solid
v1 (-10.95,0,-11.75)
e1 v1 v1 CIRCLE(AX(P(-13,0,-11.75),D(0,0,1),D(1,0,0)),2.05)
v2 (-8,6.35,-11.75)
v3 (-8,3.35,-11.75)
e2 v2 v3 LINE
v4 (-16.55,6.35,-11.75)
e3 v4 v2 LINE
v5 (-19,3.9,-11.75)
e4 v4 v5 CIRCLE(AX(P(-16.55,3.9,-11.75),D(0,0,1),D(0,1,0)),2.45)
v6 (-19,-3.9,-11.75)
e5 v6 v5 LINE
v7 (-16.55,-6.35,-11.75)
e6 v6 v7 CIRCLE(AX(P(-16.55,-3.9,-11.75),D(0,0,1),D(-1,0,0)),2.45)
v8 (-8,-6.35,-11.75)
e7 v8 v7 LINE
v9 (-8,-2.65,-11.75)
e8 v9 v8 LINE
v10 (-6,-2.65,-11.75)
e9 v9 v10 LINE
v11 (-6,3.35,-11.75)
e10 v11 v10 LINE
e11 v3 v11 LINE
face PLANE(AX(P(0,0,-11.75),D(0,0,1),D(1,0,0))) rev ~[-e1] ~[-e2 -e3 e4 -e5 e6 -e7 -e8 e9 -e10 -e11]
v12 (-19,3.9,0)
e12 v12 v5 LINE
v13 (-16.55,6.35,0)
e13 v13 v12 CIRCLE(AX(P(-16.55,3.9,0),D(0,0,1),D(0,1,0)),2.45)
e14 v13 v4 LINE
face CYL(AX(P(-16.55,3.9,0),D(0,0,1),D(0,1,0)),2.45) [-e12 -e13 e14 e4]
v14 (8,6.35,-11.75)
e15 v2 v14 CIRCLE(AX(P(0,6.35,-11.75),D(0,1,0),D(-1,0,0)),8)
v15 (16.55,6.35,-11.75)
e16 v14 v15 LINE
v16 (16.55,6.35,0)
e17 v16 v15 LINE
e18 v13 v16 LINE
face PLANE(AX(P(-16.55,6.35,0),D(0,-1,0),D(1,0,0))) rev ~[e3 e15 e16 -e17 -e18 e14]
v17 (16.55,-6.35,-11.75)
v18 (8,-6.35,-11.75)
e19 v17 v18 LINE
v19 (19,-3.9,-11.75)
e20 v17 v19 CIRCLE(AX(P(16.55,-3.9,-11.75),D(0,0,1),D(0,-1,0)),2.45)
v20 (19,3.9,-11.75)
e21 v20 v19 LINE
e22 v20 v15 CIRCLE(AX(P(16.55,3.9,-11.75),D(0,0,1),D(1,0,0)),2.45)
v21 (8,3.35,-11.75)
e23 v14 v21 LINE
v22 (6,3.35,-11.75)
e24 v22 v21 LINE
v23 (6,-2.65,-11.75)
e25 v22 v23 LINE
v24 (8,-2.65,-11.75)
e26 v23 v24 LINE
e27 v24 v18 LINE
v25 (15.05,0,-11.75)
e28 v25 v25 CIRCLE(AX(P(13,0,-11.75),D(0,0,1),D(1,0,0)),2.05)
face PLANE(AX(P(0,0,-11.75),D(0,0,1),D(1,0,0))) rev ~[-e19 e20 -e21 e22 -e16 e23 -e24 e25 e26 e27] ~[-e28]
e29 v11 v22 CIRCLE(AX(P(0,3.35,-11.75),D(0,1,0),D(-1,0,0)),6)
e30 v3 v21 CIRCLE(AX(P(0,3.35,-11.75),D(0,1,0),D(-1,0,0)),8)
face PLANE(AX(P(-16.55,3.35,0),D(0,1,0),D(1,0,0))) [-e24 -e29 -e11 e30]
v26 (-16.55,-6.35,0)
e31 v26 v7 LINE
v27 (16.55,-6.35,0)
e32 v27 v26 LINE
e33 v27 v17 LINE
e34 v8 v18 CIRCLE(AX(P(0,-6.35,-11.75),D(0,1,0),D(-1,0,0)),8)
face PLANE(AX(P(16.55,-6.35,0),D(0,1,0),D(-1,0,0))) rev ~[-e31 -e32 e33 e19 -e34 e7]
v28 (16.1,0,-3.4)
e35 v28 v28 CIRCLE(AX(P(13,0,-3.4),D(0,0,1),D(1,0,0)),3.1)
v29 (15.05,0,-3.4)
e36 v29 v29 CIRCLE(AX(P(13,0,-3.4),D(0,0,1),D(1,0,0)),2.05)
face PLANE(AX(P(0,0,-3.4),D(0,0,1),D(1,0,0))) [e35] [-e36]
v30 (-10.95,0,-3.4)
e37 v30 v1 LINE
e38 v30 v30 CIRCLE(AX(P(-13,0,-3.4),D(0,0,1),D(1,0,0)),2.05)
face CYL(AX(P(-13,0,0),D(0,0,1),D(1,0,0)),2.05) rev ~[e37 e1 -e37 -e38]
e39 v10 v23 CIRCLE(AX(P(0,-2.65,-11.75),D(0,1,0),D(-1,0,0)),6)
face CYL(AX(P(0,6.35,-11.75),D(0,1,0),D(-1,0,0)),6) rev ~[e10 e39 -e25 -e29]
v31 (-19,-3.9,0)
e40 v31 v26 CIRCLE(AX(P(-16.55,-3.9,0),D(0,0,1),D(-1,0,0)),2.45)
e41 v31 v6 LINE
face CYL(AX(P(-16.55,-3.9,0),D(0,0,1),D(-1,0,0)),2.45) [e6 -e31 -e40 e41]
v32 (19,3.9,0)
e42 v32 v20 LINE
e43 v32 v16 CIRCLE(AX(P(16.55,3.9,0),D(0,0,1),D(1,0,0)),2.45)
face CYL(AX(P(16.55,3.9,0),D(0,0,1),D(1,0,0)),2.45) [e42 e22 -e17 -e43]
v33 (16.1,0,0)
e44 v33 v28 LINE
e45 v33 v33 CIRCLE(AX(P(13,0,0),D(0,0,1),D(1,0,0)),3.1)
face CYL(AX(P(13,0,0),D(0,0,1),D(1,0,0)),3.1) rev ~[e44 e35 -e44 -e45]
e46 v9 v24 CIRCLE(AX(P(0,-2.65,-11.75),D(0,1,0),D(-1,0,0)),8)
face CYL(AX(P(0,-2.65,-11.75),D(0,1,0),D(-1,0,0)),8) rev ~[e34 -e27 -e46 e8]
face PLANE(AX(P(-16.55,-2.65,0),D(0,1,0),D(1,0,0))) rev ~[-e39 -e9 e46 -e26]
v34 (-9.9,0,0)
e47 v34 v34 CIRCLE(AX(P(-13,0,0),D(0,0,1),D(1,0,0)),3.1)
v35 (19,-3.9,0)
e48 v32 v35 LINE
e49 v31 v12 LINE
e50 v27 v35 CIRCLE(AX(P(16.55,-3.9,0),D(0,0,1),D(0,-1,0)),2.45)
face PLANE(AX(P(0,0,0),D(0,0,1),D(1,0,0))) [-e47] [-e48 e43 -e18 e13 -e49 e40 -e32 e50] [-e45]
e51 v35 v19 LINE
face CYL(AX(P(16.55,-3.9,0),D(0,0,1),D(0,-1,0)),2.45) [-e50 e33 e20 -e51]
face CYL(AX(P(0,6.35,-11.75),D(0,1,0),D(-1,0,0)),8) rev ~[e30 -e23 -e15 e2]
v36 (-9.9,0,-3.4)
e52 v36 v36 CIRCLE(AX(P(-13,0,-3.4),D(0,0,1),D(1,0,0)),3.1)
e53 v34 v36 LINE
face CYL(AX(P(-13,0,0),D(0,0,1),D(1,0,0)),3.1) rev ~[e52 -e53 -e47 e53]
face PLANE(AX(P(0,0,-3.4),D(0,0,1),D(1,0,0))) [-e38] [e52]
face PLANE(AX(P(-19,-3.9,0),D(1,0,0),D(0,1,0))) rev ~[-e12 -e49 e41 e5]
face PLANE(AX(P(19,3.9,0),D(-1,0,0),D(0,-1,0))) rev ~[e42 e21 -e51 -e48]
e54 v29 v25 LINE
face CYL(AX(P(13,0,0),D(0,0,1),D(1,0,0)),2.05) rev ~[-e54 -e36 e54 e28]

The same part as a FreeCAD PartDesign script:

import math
import FreeCAD as App
import Part
import Sketcher
Q = App.Units.Quantity

doc = App.newDocument("Part")
body = doc.addObject("PartDesign::Body", "Body")

# Sketch on XY plane
sketch1 = doc.addObject("Sketcher::SketchObject", "Sketch")
body.addObject(sketch1)
sketch1.AttachmentSupport = (doc.XY_Plane, [""])
sketch1.MapMode = "FlatFace"
sketch1.addGeometry([
    Part.LineSegment(App.Vector(16.55, 6.35, 0), App.Vector(-16.55, 6.35, 0)),  # 0
    Part.ArcOfCircle(Part.Circle(App.Vector(-16.55, 3.9, 0), App.Vector(0, 0, 1), 2.45), math.radians(90), math.radians(180)),  # 1
    Part.LineSegment(App.Vector(-19, 3.9, 0), App.Vector(-19, -3.9, 0)),  # 2
    Part.ArcOfCircle(Part.Circle(App.Vector(-16.55, -3.9, 0), App.Vector(0, 0, 1), 2.45), math.radians(180), math.radians(270)),  # 3
    Part.LineSegment(App.Vector(-16.55, -6.35, 0), App.Vector(16.55, -6.35, 0)),  # 4
    Part.ArcOfCircle(Part.Circle(App.Vector(16.55, -3.9, 0), App.Vector(0, 0, 1), 2.45), math.radians(-90), math.radians(0)),  # 5
    Part.LineSegment(App.Vector(19, -3.9, 0), App.Vector(19, 3.9, 0)),  # 6
    Part.ArcOfCircle(Part.Circle(App.Vector(16.55, 3.9, 0), App.Vector(0, 0, 1), 2.45), math.radians(0), math.radians(90)),  # 7
], False)
sketch1.addConstraint([
    Sketcher.Constraint("Tangent", 0, 2, 1, 1),
    Sketcher.Constraint("Tangent", 1, 2, 2, 1),
    Sketcher.Constraint("Tangent", 2, 2, 3, 1),
    Sketcher.Constraint("Tangent", 3, 2, 4, 1),
    Sketcher.Constraint("Tangent", 4, 2, 5, 1),
    Sketcher.Constraint("Tangent", 5, 2, 6, 1),
    Sketcher.Constraint("Tangent", 6, 2, 7, 1),
    Sketcher.Constraint("Tangent", 7, 2, 0, 1),
    Sketcher.Constraint("Horizontal", 0),
    Sketcher.Constraint("Vertical", 2),
    Sketcher.Constraint("Horizontal", 4),
    Sketcher.Constraint("Vertical", 6),
    Sketcher.Constraint("Equal", 1, 3),
    Sketcher.Constraint("Equal", 3, 5),
    Sketcher.Constraint("Equal", 5, 7),
    Sketcher.Constraint("Symmetric", 1, 3, 5, 3, -1, 1),
    Sketcher.Constraint("Radius", 1, Q("2.45 mm")),
    Sketcher.Constraint("DistanceY", 3, 2, 0, 2, Q("12.7 mm")),
    Sketcher.Constraint("DistanceX", 0, 2, 0, 1, Q("33.1 mm")),
])
pad1 = doc.addObject("PartDesign::Pad", "Pad")
body.addObject(pad1)
pad1.Profile = sketch1
pad1.Length = 11.75
pad1.Reversed = True

# Sketch on XY plane
sketch2 = doc.addObject("Sketcher::SketchObject", "Sketch001")
body.addObject(sketch2)
sketch2.AttachmentSupport = (doc.XY_Plane, [""])
sketch2.MapMode = "FlatFace"
sketch2.addGeometry([
    Part.Circle(App.Vector(-13, 0, 0), App.Vector(0, 0, 1), 2.05),
    Part.Circle(App.Vector(13, 0, 0), App.Vector(0, 0, 1), 2.05),
], False)
sketch2.addConstraint([
    Sketcher.Constraint("Equal", 0, 1),
    Sketcher.Constraint("Symmetric", 0, 3, 1, 3, -1, 1),
    Sketcher.Constraint("PointOnObject", 0, 3, -1),
    Sketcher.Constraint("Diameter", 0, Q("4.1 mm")),
    Sketcher.Constraint("DistanceX", 0, 3, -1, 1, Q("13 mm")),
])
pocket1 = doc.addObject("PartDesign::Pocket", "Pocket")
body.addObject(pocket1)
pocket1.Profile = sketch2
pocket1.Length = 11.75

# Sketch on XY plane
sketch3 = doc.addObject("Sketcher::SketchObject", "Sketch002")
body.addObject(sketch3)
sketch3.AttachmentSupport = (doc.XY_Plane, [""])
sketch3.MapMode = "FlatFace"
sketch3.addGeometry([
    Part.Circle(App.Vector(-13, 0, 0), App.Vector(0, 0, 1), 3.1),
    Part.Circle(App.Vector(-13, 0, 0), App.Vector(0, 0, 1), 2.05),
    Part.Circle(App.Vector(13, 0, 0), App.Vector(0, 0, 1), 3.1),
    Part.Circle(App.Vector(13, 0, 0), App.Vector(0, 0, 1), 2.05),
], False)
sketch3.addConstraint([
    Sketcher.Constraint("Coincident", 1, 3, 0, 3),
    Sketcher.Constraint("Coincident", 3, 3, 2, 3),
    Sketcher.Constraint("Equal", 0, 2),
    Sketcher.Constraint("Equal", 1, 3),
    Sketcher.Constraint("Symmetric", 0, 3, 2, 3, -1, 1),
    Sketcher.Constraint("PointOnObject", 0, 3, -1),
    Sketcher.Constraint("Diameter", 0, Q("6.2 mm")),
    Sketcher.Constraint("Diameter", 1, Q("4.1 mm")),
    Sketcher.Constraint("DistanceX", 0, 3, -1, 1, Q("13 mm")),
])
pocket2 = doc.addObject("PartDesign::Pocket", "Pocket001")
body.addObject(pocket2)
pocket2.Profile = sketch3
pocket2.Length = 3.4

# Sketch on XZ plane
sketch4 = doc.addObject("Sketcher::SketchObject", "Sketch003")
body.addObject(sketch4)
sketch4.AttachmentSupport = (doc.XZ_Plane, [""])
sketch4.MapMode = "FlatFace"
sketch4.AttachmentOffset = App.Placement(App.Vector(0, 0, -6.35), App.Rotation())
sketch4.addGeometry([
    Part.ArcOfCircle(Part.Circle(App.Vector(0, -11.75, 0), App.Vector(0, 0, 1), 6), math.radians(0), math.radians(180)),
    Part.LineSegment(App.Vector(-6, -11.75, 0), App.Vector(-8, -11.75, 0)),
    Part.ArcOfCircle(Part.Circle(App.Vector(0, -11.75, 0), App.Vector(0, 0, 1), 8), math.radians(0), math.radians(180)),
    Part.LineSegment(App.Vector(8, -11.75, 0), App.Vector(6, -11.75, 0)),
], False)
sketch4.addConstraint([
    Sketcher.Constraint("Coincident", 0, 2, 1, 1),
    Sketcher.Constraint("Coincident", 1, 2, 2, 2),
    Sketcher.Constraint("Coincident", 2, 1, 3, 1),
    Sketcher.Constraint("Coincident", 3, 2, 0, 1),
    Sketcher.Constraint("Horizontal", 1),
    Sketcher.Constraint("Horizontal", 3),
    Sketcher.Constraint("Coincident", 2, 3, 0, 3),
    Sketcher.Constraint("Symmetric", 1, 2, 2, 1, -2),
    Sketcher.Constraint("Horizontal", 2, 3, 0, 2),
    Sketcher.Constraint("Radius", 0, Q("6 mm")),
    Sketcher.Constraint("Radius", 2, Q("8 mm")),
    Sketcher.Constraint("DistanceY", 0, 3, -1, 1, Q("11.75 mm")),
])
pocket3 = doc.addObject("PartDesign::Pocket", "Pocket002")
body.addObject(pocket3)
pocket3.Profile = sketch4
pocket3.Length = 3
pocket3.Reversed = True

# Sketch on XZ plane
sketch5 = doc.addObject("Sketcher::SketchObject", "Sketch004")
body.addObject(sketch5)
sketch5.AttachmentSupport = (doc.XZ_Plane, [""])
sketch5.MapMode = "FlatFace"
sketch5.AttachmentOffset = App.Placement(App.Vector(0, 0, -6.35), App.Rotation())
sketch5.addGeometry([
    Part.LineSegment(App.Vector(6, -11.75, 0), App.Vector(-6, -11.75, 0)),
    Part.ArcOfCircle(Part.Circle(App.Vector(0, -11.75, 0), App.Vector(0, 0, 1), 6), math.radians(0), math.radians(180)),
], False)
sketch5.addConstraint([
    Sketcher.Constraint("Coincident", 0, 1, 1, 1),
    Sketcher.Constraint("Coincident", 1, 2, 0, 2),
    Sketcher.Constraint("Horizontal", 0),
    Sketcher.Constraint("PointOnObject", 1, 3, -2),
    Sketcher.Constraint("Horizontal", 1, 3, 0, 1),
    Sketcher.Constraint("Radius", 1, Q("6 mm")),
    Sketcher.Constraint("DistanceY", 1, 3, -1, 1, Q("11.75 mm")),
])
pocket4 = doc.addObject("PartDesign::Pocket", "Pocket003")
body.addObject(pocket4)
pocket4.Profile = sketch5
pocket4.Length = 12.7
pocket4.Reversed = True

# Sketch on XZ plane
sketch6 = doc.addObject("Sketcher::SketchObject", "Sketch005")
body.addObject(sketch6)
sketch6.AttachmentSupport = (doc.XZ_Plane, [""])
sketch6.MapMode = "FlatFace"
sketch6.AttachmentOffset = App.Placement(App.Vector(0, 0, 2.65), App.Rotation())
sketch6.addGeometry([
    Part.LineSegment(App.Vector(-6, -11.75, 0), App.Vector(-8, -11.75, 0)),
    Part.ArcOfCircle(Part.Circle(App.Vector(0, -11.75, 0), App.Vector(0, 0, 1), 8), math.radians(0), math.radians(180)),
    Part.LineSegment(App.Vector(8, -11.75, 0), App.Vector(6, -11.75, 0)),
    Part.ArcOfCircle(Part.Circle(App.Vector(0, -11.75, 0), App.Vector(0, 0, 1), 6), math.radians(0), math.radians(180)),
], False)
sketch6.addConstraint([
    Sketcher.Constraint("Coincident", 0, 2, 1, 2),
    Sketcher.Constraint("Coincident", 1, 1, 2, 1),
    Sketcher.Constraint("Coincident", 2, 2, 3, 1),
    Sketcher.Constraint("Coincident", 3, 2, 0, 1),
    Sketcher.Constraint("Horizontal", 0),
    Sketcher.Constraint("Horizontal", 2),
    Sketcher.Constraint("Coincident", 3, 3, 1, 3),
    Sketcher.Constraint("Symmetric", 0, 2, 1, 1, -2),
    Sketcher.Constraint("Horizontal", 3, 3, 0, 2),
    Sketcher.Constraint("Radius", 1, Q("8 mm")),
    Sketcher.Constraint("Radius", 3, Q("6 mm")),
    Sketcher.Constraint("DistanceY", 1, 3, -1, 1, Q("11.75 mm")),
])
pocket5 = doc.addObject("PartDesign::Pocket", "Pocket004")
body.addObject(pocket5)
pocket5.Profile = sketch6
pocket5.Length = 3.7
pocket5.Reversed = True

doc.recompute()
